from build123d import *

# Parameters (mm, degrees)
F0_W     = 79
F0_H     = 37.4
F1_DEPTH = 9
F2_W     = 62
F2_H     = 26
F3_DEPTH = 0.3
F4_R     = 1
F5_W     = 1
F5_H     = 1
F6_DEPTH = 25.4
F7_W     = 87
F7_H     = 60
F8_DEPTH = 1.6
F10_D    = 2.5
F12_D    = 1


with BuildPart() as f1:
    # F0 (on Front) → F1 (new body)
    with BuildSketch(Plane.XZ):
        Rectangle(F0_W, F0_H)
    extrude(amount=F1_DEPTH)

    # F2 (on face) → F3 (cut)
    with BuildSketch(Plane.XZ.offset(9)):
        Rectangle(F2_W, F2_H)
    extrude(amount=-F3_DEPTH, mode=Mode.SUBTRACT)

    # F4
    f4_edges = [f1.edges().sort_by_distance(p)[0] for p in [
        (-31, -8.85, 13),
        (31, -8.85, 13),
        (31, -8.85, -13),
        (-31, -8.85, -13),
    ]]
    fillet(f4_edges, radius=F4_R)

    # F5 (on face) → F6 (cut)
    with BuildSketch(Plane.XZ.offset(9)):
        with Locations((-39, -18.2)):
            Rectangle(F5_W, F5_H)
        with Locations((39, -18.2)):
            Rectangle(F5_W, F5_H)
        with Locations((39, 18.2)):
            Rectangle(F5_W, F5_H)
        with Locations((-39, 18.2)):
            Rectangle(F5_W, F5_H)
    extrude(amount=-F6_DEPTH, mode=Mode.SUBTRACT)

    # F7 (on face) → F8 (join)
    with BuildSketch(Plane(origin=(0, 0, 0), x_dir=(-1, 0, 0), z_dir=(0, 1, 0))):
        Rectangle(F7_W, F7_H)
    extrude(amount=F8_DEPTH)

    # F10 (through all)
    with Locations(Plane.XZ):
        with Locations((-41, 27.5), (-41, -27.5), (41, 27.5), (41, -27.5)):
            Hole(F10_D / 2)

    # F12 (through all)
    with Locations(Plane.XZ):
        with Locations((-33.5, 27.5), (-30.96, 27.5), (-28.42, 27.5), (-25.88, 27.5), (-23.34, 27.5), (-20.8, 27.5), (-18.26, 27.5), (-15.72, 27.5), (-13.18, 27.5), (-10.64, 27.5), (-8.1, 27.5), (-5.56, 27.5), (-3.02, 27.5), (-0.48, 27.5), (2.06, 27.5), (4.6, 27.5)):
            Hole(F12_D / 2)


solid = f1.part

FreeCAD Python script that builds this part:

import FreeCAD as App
import Part
import Sketcher

V = App.Vector


def edges_at(feature, points):
    """Names of the edges that pass closest to the given points."""
    edges = feature.Shape.Edges
    near = lambda p: min(range(len(edges)), key=lambda i: edges[i].distToShape(Part.Vertex(*p))[0])
    return sorted({f"Edge{near(p) + 1}" for p in points})

doc = App.newDocument("Part")
body = doc.addObject("PartDesign::Body", "Body")

# Sketch on XZ plane
sketch1 = doc.addObject("Sketcher::SketchObject", "Sketch")
body.addObject(sketch1)
sketch1.AttachmentSupport = (doc.XZ_Plane, [""])
sketch1.MapMode = "FlatFace"
sketch1.addGeometry(Part.LineSegment(V(-39.5, 18.7, 0), V(-39.5, -18.7, 0)), False)
sketch1.addGeometry(Part.LineSegment(V(-39.5, -18.7, 0), V(39.5, -18.7, 0)), False)
sketch1.addGeometry(Part.LineSegment(V(39.5, -18.7, 0), V(39.5, 18.7, 0)), False)
sketch1.addGeometry(Part.LineSegment(V(39.5, 18.7, 0), V(-39.5, 18.7, 0)), False)
sketch1.addConstraint(Sketcher.Constraint("Coincident", 0, 2, 1, 1))
sketch1.addConstraint(Sketcher.Constraint("Coincident", 1, 2, 2, 1))
sketch1.addConstraint(Sketcher.Constraint("Coincident", 2, 2, 3, 1))
sketch1.addConstraint(Sketcher.Constraint("Coincident", 3, 2, 0, 1))
sketch1.addConstraint(Sketcher.Constraint("Vertical", 0))
sketch1.addConstraint(Sketcher.Constraint("Horizontal", 1))
sketch1.addConstraint(Sketcher.Constraint("Vertical", 2))
sketch1.addConstraint(Sketcher.Constraint("Horizontal", 3))
sketch1.addConstraint(Sketcher.Constraint("Symmetric", 0, 2, 2, 2, -1, 1))
sketch1.addConstraint(Sketcher.Constraint("DistanceX", 1, 1, 1, 2, 79.0))
sketch1.addConstraint(Sketcher.Constraint("DistanceY", 0, 2, 0, 1, 37.4))
pad1 = doc.addObject("PartDesign::Pad", "Pad")
body.addObject(pad1)
pad1.Profile = sketch1
pad1.Length = 9

# Sketch on XZ plane
sketch2 = doc.addObject("Sketcher::SketchObject", "Sketch001")
body.addObject(sketch2)
sketch2.AttachmentSupport = (doc.XZ_Plane, [""])
sketch2.MapMode = "FlatFace"
sketch2.AttachmentOffset = App.Placement(V(0, 0, 9), App.Rotation())
sketch2.addGeometry(Part.LineSegment(V(-31, 13, 0), V(-31, -13, 0)), False)
sketch2.addGeometry(Part.LineSegment(V(-31, -13, 0), V(31, -13, 0)), False)
sketch2.addGeometry(Part.LineSegment(V(31, -13, 0), V(31, 13, 0)), False)
sketch2.addGeometry(Part.LineSegment(V(31, 13, 0), V(-31, 13, 0)), False)
sketch2.addConstraint(Sketcher.Constraint("Coincident", 0, 2, 1, 1))
sketch2.addConstraint(Sketcher.Constraint("Coincident", 1, 2, 2, 1))
sketch2.addConstraint(Sketcher.Constraint("Coincident", 2, 2, 3, 1))
sketch2.addConstraint(Sketcher.Constraint("Coincident", 3, 2, 0, 1))
sketch2.addConstraint(Sketcher.Constraint("Vertical", 0))
sketch2.addConstraint(Sketcher.Constraint("Horizontal", 1))
sketch2.addConstraint(Sketcher.Constraint("Vertical", 2))
sketch2.addConstraint(Sketcher.Constraint("Horizontal", 3))
sketch2.addConstraint(Sketcher.Constraint("Symmetric", 0, 2, 2, 2, -1, 1))
sketch2.addConstraint(Sketcher.Constraint("DistanceX", 1, 1, 1, 2, 62.0))
sketch2.addConstraint(Sketcher.Constraint("DistanceY", 0, 2, 0, 1, 26.0))
pocket1 = doc.addObject("PartDesign::Pocket", "Pocket")
body.addObject(pocket1)
pocket1.Profile = sketch2
pocket1.Length = 0.3
doc.recompute()

fillet = doc.addObject("PartDesign::Fillet", "Fillet")
body.addObject(fillet)
fillet.Base = (pocket1, edges_at(pocket1, [
    (-31, -8.85, 13),
    (31, -8.85, 13),
    (31, -8.85, -13),
    (-31, -8.85, -13),
]))
fillet.Radius = 1

# Sketch on XZ plane
sketch3 = doc.addObject("Sketcher::SketchObject", "Sketch002")
body.addObject(sketch3)
sketch3.AttachmentSupport = (doc.XZ_Plane, [""])
sketch3.MapMode = "FlatFace"
sketch3.AttachmentOffset = App.Placement(V(0, 0, 9), App.Rotation())
sketch3.addGeometry(Part.LineSegment(V(-39.5, -17.7, 0), V(-39.5, -18.7, 0)), False)
sketch3.addGeometry(Part.LineSegment(V(-39.5, -18.7, 0), V(-38.5, -18.7, 0)), False)
sketch3.addGeometry(Part.LineSegment(V(-38.5, -18.7, 0), V(-38.5, -17.7, 0)), False)
sketch3.addGeometry(Part.LineSegment(V(-38.5, -17.7, 0), V(-39.5, -17.7, 0)), False)
sketch3.addGeometry(Part.LineSegment(V(38.5, -17.7, 0), V(38.5, -18.7, 0)), False)
sketch3.addGeometry(Part.LineSegment(V(38.5, -18.7, 0), V(39.5, -18.7, 0)), False)
sketch3.addGeometry(Part.LineSegment(V(39.5, -18.7, 0), V(39.5, -17.7, 0)), False)
sketch3.addGeometry(Part.LineSegment(V(39.5, -17.7, 0), V(38.5, -17.7, 0)), False)
sketch3.addGeometry(Part.LineSegment(V(38.5, 18.7, 0), V(38.5, 17.7, 0)), False)
sketch3.addGeometry(Part.LineSegment(V(38.5, 17.7, 0), V(39.5, 17.7, 0)), False)
sketch3.addGeometry(Part.LineSegment(V(39.5, 17.7, 0), V(39.5, 18.7, 0)), False)
sketch3.addGeometry(Part.LineSegment(V(39.5, 18.7, 0), V(38.5, 18.7, 0)), False)
sketch3.addGeometry(Part.LineSegment(V(-39.5, 18.7, 0), V(-39.5, 17.7, 0)), False)
sketch3.addGeometry(Part.LineSegment(V(-39.5, 17.7, 0), V(-38.5, 17.7, 0)), False)
sketch3.addGeometry(Part.LineSegment(V(-38.5, 17.7, 0), V(-38.5, 18.7, 0)), False)
sketch3.addGeometry(Part.LineSegment(V(-38.5, 18.7, 0), V(-39.5, 18.7, 0)), False)
sketch3.addConstraint(Sketcher.Constraint("Coincident", 0, 2, 1, 1))
sketch3.addConstraint(Sketcher.Constraint("Coincident", 1, 2, 2, 1))
sketch3.addConstraint(Sketcher.Constraint("Coincident", 2, 2, 3, 1))
sketch3.addConstraint(Sketcher.Constraint("Coincident", 3, 2, 0, 1))
sketch3.addConstraint(Sketcher.Constraint("Coincident", 4, 2, 5, 1))
sketch3.addConstraint(Sketcher.Constraint("Coincident", 5, 2, 6, 1))
sketch3.addConstraint(Sketcher.Constraint("Coincident", 6, 2, 7, 1))
sketch3.addConstraint(Sketcher.Constraint("Coincident", 7, 2, 4, 1))
sketch3.addConstraint(Sketcher.Constraint("Coincident", 8, 2, 9, 1))
sketch3.addConstraint(Sketcher.Constraint("Coincident", 9, 2, 10, 1))
sketch3.addConstraint(Sketcher.Constraint("Coincident", 10, 2, 11, 1))
sketch3.addConstraint(Sketcher.Constraint("Coincident", 11, 2, 8, 1))
sketch3.addConstraint(Sketcher.Constraint("Coincident", 12, 2, 13, 1))
sketch3.addConstraint(Sketcher.Constraint("Coincident", 13, 2, 14, 1))
sketch3.addConstraint(Sketcher.Constraint("Coincident", 14, 2, 15, 1))
sketch3.addConstraint(Sketcher.Constraint("Coincident", 15, 2, 12, 1))
sketch3.addConstraint(Sketcher.Constraint("Vertical", 0))
sketch3.addConstraint(Sketcher.Constraint("Horizontal", 1))
sketch3.addConstraint(Sketcher.Constraint("Vertical", 2))
sketch3.addConstraint(Sketcher.Constraint("Horizontal", 3))
sketch3.addConstraint(Sketcher.Constraint("Vertical", 4))
sketch3.addConstraint(Sketcher.Constraint("Horizontal", 5))
sketch3.addConstraint(Sketcher.Constraint("Vertical", 6))
sketch3.addConstraint(Sketcher.Constraint("Horizontal", 7))
sketch3.addConstraint(Sketcher.Constraint("Vertical", 8))
sketch3.addConstraint(Sketcher.Constraint("Horizontal", 9))
sketch3.addConstraint(Sketcher.Constraint("Vertical", 10))
sketch3.addConstraint(Sketcher.Constraint("Horizontal", 11))
sketch3.addConstraint(Sketcher.Constraint("Vertical", 12))
sketch3.addConstraint(Sketcher.Constraint("Horizontal", 13))
sketch3.addConstraint(Sketcher.Constraint("Vertical", 14))
sketch3.addConstraint(Sketcher.Constraint("Horizontal", 15))
sketch3.addConstraint(Sketcher.Constraint("Symmetric", 2, 2, 8, 2, -1, 1))
sketch3.addConstraint(Sketcher.Constraint("Symmetric", 0, 2, 10, 2, -1, 1))
sketch3.addConstraint(Sketcher.Constraint("Symmetric", 6, 2, 12, 2, -1, 1))
sketch3.addConstraint(Sketcher.Constraint("Symmetric", 4, 2, 14, 2, -1, 1))
sketch3.addConstraint(Sketcher.Constraint("Symmetric", 1, 2, 4, 2, -2))
sketch3.addConstraint(Sketcher.Constraint("Symmetric", 3, 2, 6, 2, -2))
sketch3.addConstraint(Sketcher.Constraint("Equal", 15, 0))
sketch3.addConstraint(Sketcher.Constraint("DistanceX", 1, 1, 1, 2, 1.0))
sketch3.addConstraint(Sketcher.Constraint("DistanceX", 1, 2, 4, 2, 77.0))
sketch3.addConstraint(Sketcher.Constraint("DistanceY", 0, 2, -1, 1, 18.7))
pocket2 = doc.addObject("PartDesign::Pocket", "Pocket001")
body.addObject(pocket2)
pocket2.Profile = sketch3
pocket2.Length = 25.4

# Sketch on XZ plane
sketch4 = doc.addObject("Sketcher::SketchObject", "Sketch003")
body.addObject(sketch4)
sketch4.AttachmentSupport = (doc.XZ_Plane, [""])
sketch4.MapMode = "FlatFace"
sketch4.addGeometry(Part.LineSegment(V(43.5, 30, 0), V(43.5, -30, 0)), False)
sketch4.addGeometry(Part.LineSegment(V(43.5, -30, 0), V(-43.5, -30, 0)), False)
sketch4.addGeometry(Part.LineSegment(V(-43.5, -30, 0), V(-43.5, 30, 0)), False)
sketch4.addGeometry(Part.LineSegment(V(-43.5, 30, 0), V(43.5, 30, 0)), False)
sketch4.addConstraint(Sketcher.Constraint("Coincident", 0, 2, 1, 1))
sketch4.addConstraint(Sketcher.Constraint("Coincident", 1, 2, 2, 1))
sketch4.addConstraint(Sketcher.Constraint("Coincident", 2, 2, 3, 1))
sketch4.addConstraint(Sketcher.Constraint("Coincident", 3, 2, 0, 1))
sketch4.addConstraint(Sketcher.Constraint("Vertical", 0))
sketch4.addConstraint(Sketcher.Constraint("Horizontal", 1))
sketch4.addConstraint(Sketcher.Constraint("Vertical", 2))
sketch4.addConstraint(Sketcher.Constraint("Horizontal", 3))
sketch4.addConstraint(Sketcher.Constraint("Symmetric", 0, 2, 2, 2, -1, 1))
sketch4.addConstraint(Sketcher.Constraint("DistanceX", 1, 2, 1, 1, 87.0))
sketch4.addConstraint(Sketcher.Constraint("DistanceY", 0, 2, 0, 1, 60.0))
pad2 = doc.addObject("PartDesign::Pad", "Pad001")
body.addObject(pad2)
pad2.Profile = sketch4
pad2.Length = 1.6
pad2.Reversed = True

# Sketch on XZ plane
sketch5 = doc.addObject("Sketcher::SketchObject", "Sketch004")
body.addObject(sketch5)
sketch5.AttachmentSupport = (doc.XZ_Plane, [""])
sketch5.MapMode = "FlatFace"
sketch5.addGeometry(Part.Circle(V(-41, 27.5, 0), V(0, 0, 1), 1.25), False)
sketch5.addGeometry(Part.Circle(V(-41, -27.5, 0), V(0, 0, 1), 1.25), False)
sketch5.addGeometry(Part.Circle(V(41, 27.5, 0), V(0, 0, 1), 1.25), False)
sketch5.addGeometry(Part.Circle(V(41, -27.5, 0), V(0, 0, 1), 1.25), False)
sketch5.addConstraint(Sketcher.Constraint("Equal", 0, 1))
sketch5.addConstraint(Sketcher.Constraint("Equal", 1, 2))
sketch5.addConstraint(Sketcher.Constraint("Equal", 2, 3))
sketch5.addConstraint(Sketcher.Constraint("Symmetric", 1, 3, 2, 3, -1, 1))
sketch5.addConstraint(Sketcher.Constraint("Symmetric", 0, 3, 3, 3, -1, 1))
sketch5.addConstraint(Sketcher.Constraint("Symmetric", 0, 3, 2, 3, -2))
sketch5.addConstraint(Sketcher.Constraint("Diameter", 0, 2.5))
sketch5.addConstraint(Sketcher.Constraint("DistanceX", 0, 3, -1, 1, 41.0))
sketch5.addConstraint(Sketcher.Constraint("DistanceY", 1, 3, 0, 3, 55.0))
doc.recompute()
hole = doc.addObject("PartDesign::Hole", "Hole")
body.addObject(hole)
hole.Profile = sketch5
hole.ThreadType = "None"
hole.Diameter = 2.5
hole.DepthType = "ThroughAll"

# Sketch on XZ plane
sketch6 = doc.addObject("Sketcher::SketchObject", "Sketch005")
body.addObject(sketch6)
sketch6.AttachmentSupport = (doc.XZ_Plane, [""])
sketch6.MapMode = "FlatFace"
sketch6.addGeometry(Part.Circle(V(-33.5, 27.5, 0), V(0, 0, 1), 0.5), False)
sketch6.addGeometry(Part.Circle(V(-30.96, 27.5, 0), V(0, 0, 1), 0.5), False)
sketch6.addGeometry(Part.Circle(V(-28.42, 27.5, 0), V(0, 0, 1), 0.5), False)
sketch6.addGeometry(Part.Circle(V(-25.88, 27.5, 0), V(0, 0, 1), 0.5), False)
sketch6.addGeometry(Part.Circle(V(-23.34, 27.5, 0), V(0, 0, 1), 0.5), False)
sketch6.addGeometry(Part.Circle(V(-20.8, 27.5, 0), V(0, 0, 1), 0.5), False)
sketch6.addGeometry(Part.Circle(V(-18.26, 27.5, 0), V(0, 0, 1), 0.5), False)
sketch6.addGeometry(Part.Circle(V(-15.72, 27.5, 0), V(0, 0, 1), 0.5), False)
sketch6.addGeometry(Part.Circle(V(-13.18, 27.5, 0), V(0, 0, 1), 0.5), False)
sketch6.addGeometry(Part.Circle(V(-10.64, 27.5, 0), V(0, 0, 1), 0.5), False)
sketch6.addGeometry(Part.Circle(V(-8.1, 27.5, 0), V(0, 0, 1), 0.5), False)
sketch6.addGeometry(Part.Circle(V(-5.56, 27.5, 0), V(0, 0, 1), 0.5), False)
sketch6.addGeometry(Part.Circle(V(-3.02, 27.5, 0), V(0, 0, 1), 0.5), False)
sketch6.addGeometry(Part.Circle(V(-0.48, 27.5, 0), V(0, 0, 1), 0.5), False)
sketch6.addGeometry(Part.Circle(V(2.06, 27.5, 0), V(0, 0, 1), 0.5), False)
sketch6.addGeometry(Part.Circle(V(4.6, 27.5, 0), V(0, 0, 1), 0.5), False)
sketch6.addConstraint(Sketcher.Constraint("Equal", 0, 1))
sketch6.addConstraint(Sketcher.Constraint("Equal", 1, 2))
sketch6.addConstraint(Sketcher.Constraint("Equal", 2, 3))
sketch6.addConstraint(Sketcher.Constraint("Equal", 3, 4))
sketch6.addConstraint(Sketcher.Constraint("Equal", 4, 5))
sketch6.addConstraint(Sketcher.Constraint("Equal", 5, 6))
sketch6.addConstraint(Sketcher.Constraint("Equal", 6, 7))
sketch6.addConstraint(Sketcher.Constraint("Equal", 7, 8))
sketch6.addConstraint(Sketcher.Constraint("Equal", 8, 9))
sketch6.addConstraint(Sketcher.Constraint("Equal", 9, 10))
sketch6.addConstraint(Sketcher.Constraint("Equal", 10, 11))
sketch6.addConstraint(Sketcher.Constraint("Equal", 11, 12))
sketch6.addConstraint(Sketcher.Constraint("Equal", 12, 13))
sketch6.addConstraint(Sketcher.Constraint("Equal", 13, 14))
sketch6.addConstraint(Sketcher.Constraint("Equal", 14, 15))
sketch6.addConstraint(Sketcher.Constraint("Horizontal", 0, 3, 1, 3))
sketch6.addConstraint(Sketcher.Constraint("Horizontal", 1, 3, 2, 3))
sketch6.addConstraint(Sketcher.Constraint("Horizontal", 2, 3, 3, 3))
sketch6.addConstraint(Sketcher.Constraint("Horizontal", 3, 3, 4, 3))
sketch6.addConstraint(Sketcher.Constraint("Horizontal", 4, 3, 5, 3))
sketch6.addConstraint(Sketcher.Constraint("Horizontal", 5, 3, 6, 3))
sketch6.addConstraint(Sketcher.Constraint("Horizontal", 6, 3, 7, 3))
sketch6.addConstraint(Sketcher.Constraint("Horizontal", 7, 3, 8, 3))
sketch6.addConstraint(Sketcher.Constraint("Horizontal", 8, 3, 9, 3))
sketch6.addConstraint(Sketcher.Constraint("Horizontal", 9, 3, 10, 3))
sketch6.addConstraint(Sketcher.Constraint("Horizontal", 10, 3, 11, 3))
sketch6.addConstraint(Sketcher.Constraint("Horizontal", 11, 3, 12, 3))
sketch6.addConstraint(Sketcher.Constraint("Horizontal", 12, 3, 13, 3))
sketch6.addConstraint(Sketcher.Constraint("Horizontal", 13, 3, 14, 3))
sketch6.addConstraint(Sketcher.Constraint("Horizontal", 14, 3, 15, 3))
sketch6.addConstraint(Sketcher.Constraint("Diameter", 0, 1.0))
sketch6.addConstraint(Sketcher.Constraint("DistanceX", 0, 3, -1, 1, 33.5))
sketch6.addConstraint(Sketcher.Constraint("DistanceY", -1, 1, 0, 3, 27.5))
sketch6.addConstraint(Sketcher.Constraint("DistanceX", 5, 3, -1, 1, 20.8))
sketch6.addConstraint(Sketcher.Constraint("DistanceX", 10, 3, -1, 1, 8.1))
sketch6.addConstraint(Sketcher.Constraint("DistanceX", -1, 1, 15, 3, 4.6))
sketch6.addConstraint(Sketcher.Constraint("DistanceX", 1, 3, 6, 3, 12.7))
sketch6.addConstraint(Sketcher.Constraint("DistanceX", 2, 3, 7, 3, 12.7))
sketch6.addConstraint(Sketcher.Constraint("DistanceX", 3, 3, 8, 3, 12.7))
sketch6.addConstraint(Sketcher.Constraint("DistanceX", 4, 3, 9, 3, 12.7))
sketch6.addConstraint(Sketcher.Constraint("DistanceX", 6, 3, 11, 3, 12.7))
sketch6.addConstraint(Sketcher.Constraint("DistanceX", 7, 3, 12, 3, 12.7))
sketch6.addConstraint(Sketcher.Constraint("DistanceX", 8, 3, 13, 3, 12.7))
sketch6.addConstraint(Sketcher.Constraint("DistanceX", 9, 3, 14, 3, 12.7))
sketch6.addConstraint(Sketcher.Constraint("DistanceX", 1, 3, -1, 1, 30.96))
sketch6.addConstraint(Sketcher.Constraint("DistanceX", 2, 3, -1, 1, 28.42))
sketch6.addConstraint(Sketcher.Constraint("DistanceX", 3, 3, -1, 1, 25.88))
sketch6.addConstraint(Sketcher.Constraint("DistanceX", 4, 3, -1, 1, 23.34))
doc.recompute()
hole2 = doc.addObject("PartDesign::Hole", "Hole001")
body.addObject(hole2)
hole2.Profile = sketch6
hole2.ThreadType = "None"
hole2.Diameter = 1
hole2.DepthType = "ThroughAll"

doc.recompute()
